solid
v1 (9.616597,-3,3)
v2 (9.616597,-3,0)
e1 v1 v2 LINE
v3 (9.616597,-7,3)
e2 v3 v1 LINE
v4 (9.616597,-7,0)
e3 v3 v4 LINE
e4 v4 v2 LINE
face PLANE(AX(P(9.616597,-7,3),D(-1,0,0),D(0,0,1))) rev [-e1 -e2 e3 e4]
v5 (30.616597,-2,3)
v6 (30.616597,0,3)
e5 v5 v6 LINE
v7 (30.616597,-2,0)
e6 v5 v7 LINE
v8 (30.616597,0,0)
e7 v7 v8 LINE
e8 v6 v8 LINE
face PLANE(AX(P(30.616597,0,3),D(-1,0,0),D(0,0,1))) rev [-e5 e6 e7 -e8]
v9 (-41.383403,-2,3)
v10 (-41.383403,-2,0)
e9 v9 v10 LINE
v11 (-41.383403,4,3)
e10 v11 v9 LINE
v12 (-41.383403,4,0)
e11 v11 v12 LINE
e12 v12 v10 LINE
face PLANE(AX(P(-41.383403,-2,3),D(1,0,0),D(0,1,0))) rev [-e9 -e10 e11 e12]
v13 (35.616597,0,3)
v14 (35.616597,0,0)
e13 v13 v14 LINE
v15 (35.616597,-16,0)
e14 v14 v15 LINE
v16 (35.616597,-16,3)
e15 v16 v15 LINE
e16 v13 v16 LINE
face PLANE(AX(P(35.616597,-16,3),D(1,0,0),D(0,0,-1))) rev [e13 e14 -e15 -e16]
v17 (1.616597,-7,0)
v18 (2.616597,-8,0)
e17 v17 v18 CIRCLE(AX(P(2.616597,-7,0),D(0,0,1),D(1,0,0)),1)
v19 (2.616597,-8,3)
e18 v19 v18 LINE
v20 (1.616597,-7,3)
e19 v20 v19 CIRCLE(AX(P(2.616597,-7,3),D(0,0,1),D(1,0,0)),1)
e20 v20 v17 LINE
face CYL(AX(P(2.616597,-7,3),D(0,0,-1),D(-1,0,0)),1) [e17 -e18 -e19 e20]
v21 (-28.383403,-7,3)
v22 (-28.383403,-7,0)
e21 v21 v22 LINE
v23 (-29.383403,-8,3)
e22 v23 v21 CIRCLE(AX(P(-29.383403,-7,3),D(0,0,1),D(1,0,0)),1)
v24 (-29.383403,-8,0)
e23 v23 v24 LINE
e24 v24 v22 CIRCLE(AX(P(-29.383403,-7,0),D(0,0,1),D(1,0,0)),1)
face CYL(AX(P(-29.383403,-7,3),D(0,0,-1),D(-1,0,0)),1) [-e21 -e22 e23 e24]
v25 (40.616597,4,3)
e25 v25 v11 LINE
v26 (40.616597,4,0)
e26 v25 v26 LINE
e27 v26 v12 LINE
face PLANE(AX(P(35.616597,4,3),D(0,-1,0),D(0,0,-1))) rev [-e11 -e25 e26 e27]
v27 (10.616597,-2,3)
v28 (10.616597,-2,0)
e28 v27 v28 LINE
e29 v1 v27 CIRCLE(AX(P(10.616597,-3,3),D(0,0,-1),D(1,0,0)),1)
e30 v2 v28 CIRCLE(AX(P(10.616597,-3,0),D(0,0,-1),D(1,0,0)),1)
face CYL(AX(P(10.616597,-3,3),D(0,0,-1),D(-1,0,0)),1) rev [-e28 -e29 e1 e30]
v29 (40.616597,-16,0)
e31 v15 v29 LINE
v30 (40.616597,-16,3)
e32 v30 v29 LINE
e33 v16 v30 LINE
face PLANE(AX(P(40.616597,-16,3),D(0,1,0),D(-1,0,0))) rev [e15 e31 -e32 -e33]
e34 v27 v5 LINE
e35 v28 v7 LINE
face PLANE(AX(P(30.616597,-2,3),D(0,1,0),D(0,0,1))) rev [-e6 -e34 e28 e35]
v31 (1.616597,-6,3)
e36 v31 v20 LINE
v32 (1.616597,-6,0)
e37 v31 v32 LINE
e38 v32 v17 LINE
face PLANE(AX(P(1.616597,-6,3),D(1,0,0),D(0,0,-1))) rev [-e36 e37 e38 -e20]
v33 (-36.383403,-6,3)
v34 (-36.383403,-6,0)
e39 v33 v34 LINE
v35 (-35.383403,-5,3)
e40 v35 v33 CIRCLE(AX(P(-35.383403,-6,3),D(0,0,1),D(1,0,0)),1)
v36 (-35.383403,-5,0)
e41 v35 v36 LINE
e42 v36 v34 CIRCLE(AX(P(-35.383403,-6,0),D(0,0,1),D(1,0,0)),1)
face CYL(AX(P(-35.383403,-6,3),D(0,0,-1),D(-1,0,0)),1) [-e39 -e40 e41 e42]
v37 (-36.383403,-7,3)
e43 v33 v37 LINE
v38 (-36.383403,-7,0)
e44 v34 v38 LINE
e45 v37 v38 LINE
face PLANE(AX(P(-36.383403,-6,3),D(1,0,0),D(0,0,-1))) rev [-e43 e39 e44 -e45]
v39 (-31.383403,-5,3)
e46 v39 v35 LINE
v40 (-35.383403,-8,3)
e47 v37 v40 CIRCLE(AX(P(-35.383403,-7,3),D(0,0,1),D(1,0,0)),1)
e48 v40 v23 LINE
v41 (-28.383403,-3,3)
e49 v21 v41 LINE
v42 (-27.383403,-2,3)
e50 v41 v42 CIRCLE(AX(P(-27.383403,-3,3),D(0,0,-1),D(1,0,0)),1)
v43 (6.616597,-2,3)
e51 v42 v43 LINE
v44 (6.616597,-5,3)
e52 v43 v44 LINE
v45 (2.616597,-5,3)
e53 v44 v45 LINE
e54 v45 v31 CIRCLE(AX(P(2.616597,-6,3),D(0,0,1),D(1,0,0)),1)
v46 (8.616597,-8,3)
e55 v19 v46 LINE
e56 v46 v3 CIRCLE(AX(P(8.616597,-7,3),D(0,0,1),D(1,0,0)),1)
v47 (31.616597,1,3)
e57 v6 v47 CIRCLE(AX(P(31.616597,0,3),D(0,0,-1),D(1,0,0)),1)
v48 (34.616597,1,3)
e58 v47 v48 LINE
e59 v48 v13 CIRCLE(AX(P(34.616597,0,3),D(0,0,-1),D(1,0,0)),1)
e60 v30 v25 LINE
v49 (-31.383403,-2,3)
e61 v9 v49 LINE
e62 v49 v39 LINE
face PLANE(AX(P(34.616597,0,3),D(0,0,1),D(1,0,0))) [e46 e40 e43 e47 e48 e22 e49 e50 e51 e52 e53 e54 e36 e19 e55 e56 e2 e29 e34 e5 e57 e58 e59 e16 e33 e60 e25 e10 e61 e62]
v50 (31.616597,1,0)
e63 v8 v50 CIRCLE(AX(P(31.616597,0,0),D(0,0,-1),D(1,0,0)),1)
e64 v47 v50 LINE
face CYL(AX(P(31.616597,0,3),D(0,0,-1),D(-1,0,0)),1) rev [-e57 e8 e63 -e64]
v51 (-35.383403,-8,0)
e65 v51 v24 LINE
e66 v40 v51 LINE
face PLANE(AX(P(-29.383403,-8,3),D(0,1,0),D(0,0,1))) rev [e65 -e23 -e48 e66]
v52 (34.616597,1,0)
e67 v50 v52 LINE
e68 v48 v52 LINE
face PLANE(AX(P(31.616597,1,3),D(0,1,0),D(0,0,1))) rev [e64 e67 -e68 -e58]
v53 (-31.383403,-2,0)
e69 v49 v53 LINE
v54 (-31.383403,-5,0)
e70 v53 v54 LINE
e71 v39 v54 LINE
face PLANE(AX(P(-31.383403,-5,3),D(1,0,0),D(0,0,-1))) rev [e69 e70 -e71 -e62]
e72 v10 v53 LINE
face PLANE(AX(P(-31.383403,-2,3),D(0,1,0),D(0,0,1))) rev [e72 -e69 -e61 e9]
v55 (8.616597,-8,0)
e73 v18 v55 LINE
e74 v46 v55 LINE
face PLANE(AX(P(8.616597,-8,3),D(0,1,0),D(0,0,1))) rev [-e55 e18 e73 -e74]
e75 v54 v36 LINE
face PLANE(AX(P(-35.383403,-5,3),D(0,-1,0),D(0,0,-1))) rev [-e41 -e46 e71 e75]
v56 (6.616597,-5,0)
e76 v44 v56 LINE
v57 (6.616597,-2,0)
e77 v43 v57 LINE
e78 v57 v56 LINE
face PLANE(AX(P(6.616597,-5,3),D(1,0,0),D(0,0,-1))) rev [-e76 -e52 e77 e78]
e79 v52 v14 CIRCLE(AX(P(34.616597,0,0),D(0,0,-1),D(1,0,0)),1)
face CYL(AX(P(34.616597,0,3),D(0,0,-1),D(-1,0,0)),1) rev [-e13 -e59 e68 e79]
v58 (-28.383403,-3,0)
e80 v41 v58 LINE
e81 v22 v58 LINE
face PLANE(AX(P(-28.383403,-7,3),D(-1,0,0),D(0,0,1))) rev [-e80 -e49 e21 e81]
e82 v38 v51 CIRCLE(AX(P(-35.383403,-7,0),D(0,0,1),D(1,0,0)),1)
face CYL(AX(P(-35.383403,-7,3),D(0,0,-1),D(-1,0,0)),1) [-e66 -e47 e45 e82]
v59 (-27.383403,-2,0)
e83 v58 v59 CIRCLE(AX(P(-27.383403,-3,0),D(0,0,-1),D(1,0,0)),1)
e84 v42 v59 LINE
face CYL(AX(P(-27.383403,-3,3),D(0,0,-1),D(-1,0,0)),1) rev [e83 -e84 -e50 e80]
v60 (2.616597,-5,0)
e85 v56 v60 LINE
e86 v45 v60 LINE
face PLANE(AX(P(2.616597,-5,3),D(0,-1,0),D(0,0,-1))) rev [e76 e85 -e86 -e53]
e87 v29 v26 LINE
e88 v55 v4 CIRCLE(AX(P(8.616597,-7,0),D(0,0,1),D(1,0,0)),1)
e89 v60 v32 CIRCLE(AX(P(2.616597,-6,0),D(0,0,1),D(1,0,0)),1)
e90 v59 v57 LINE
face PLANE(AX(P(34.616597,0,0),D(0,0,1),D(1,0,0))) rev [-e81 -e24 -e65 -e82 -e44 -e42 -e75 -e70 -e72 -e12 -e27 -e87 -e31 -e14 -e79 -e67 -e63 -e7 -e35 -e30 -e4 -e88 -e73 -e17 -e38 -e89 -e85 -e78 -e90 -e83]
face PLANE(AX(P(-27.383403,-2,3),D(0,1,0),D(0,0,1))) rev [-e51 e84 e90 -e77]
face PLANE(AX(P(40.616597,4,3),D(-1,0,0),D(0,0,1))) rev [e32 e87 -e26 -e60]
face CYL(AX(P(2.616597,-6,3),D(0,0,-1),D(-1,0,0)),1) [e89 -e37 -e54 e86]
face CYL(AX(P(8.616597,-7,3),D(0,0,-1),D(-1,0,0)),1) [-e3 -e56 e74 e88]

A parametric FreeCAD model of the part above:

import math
import FreeCAD as App
import Part
import Sketcher

V = App.Vector
Q = App.Units.Quantity

doc = App.newDocument("Part")
body = doc.addObject("PartDesign::Body", "Body")

# Sketch on XY plane
sketch1 = body.newObject("Sketcher::SketchObject", "Sketch")
sketch1.AttachmentSupport = (doc.getObject("XY_Plane"), [""])
sketch1.MapMode = "FlatFace"
sketch1.addGeometry([
    Part.LineSegment(V(-41.383403, 4, 0), V(-41.383403, -2, 0)),  # 0
    Part.LineSegment(V(-41.383403, -2, 0), V(-31.383403, -2, 0)),  # 1
    Part.LineSegment(V(-31.383403, -2, 0), V(-31.383403, -5, 0)),  # 2
    Part.LineSegment(V(-31.383403, -5, 0), V(-35.383403, -5, 0)),  # 3
    Part.ArcOfCircle(Part.Circle(V(-35.383403, -6, 0), V(0, 0, 1), 1), math.radians(90), math.radians(180)),  # 4
    Part.LineSegment(V(-36.383403, -6, 0), V(-36.383403, -7, 0)),  # 5
    Part.ArcOfCircle(Part.Circle(V(-35.383403, -7, 0), V(0, 0, 1), 1), math.radians(-180), math.radians(-90)),  # 6
    Part.LineSegment(V(-35.383403, -8, 0), V(-29.383403, -8, 0)),  # 7
    Part.ArcOfCircle(Part.Circle(V(-29.383403, -7, 0), V(0, 0, 1), 1), math.radians(-90), math.radians(0)),  # 8
    Part.LineSegment(V(-28.383403, -7, 0), V(-28.383403, -3, 0)),  # 9
    Part.ArcOfCircle(Part.Circle(V(-27.383403, -3, 0), V(0, 0, 1), 1), math.radians(90), math.radians(180)),  # 10
    Part.LineSegment(V(-27.383403, -2, 0), V(6.616597, -2, 0)),  # 11
    Part.LineSegment(V(6.616597, -2, 0), V(6.616597, -5, 0)),  # 12
    Part.LineSegment(V(6.616597, -5, 0), V(2.616597, -5, 0)),  # 13
    Part.ArcOfCircle(Part.Circle(V(2.616597, -6, 0), V(0, 0, 1), 1), math.radians(90), math.radians(180)),  # 14
    Part.LineSegment(V(1.616597, -6, 0), V(1.616597, -7, 0)),  # 15
    Part.ArcOfCircle(Part.Circle(V(2.616597, -7, 0), V(0, 0, 1), 1), math.radians(-180), math.radians(-90)),  # 16
    Part.LineSegment(V(2.616597, -8, 0), V(8.616597, -8, 0)),  # 17
    Part.ArcOfCircle(Part.Circle(V(8.616597, -7, 0), V(0, 0, 1), 1), math.radians(-90), math.radians(0)),  # 18
    Part.LineSegment(V(9.616597, -7, 0), V(9.616597, -3, 0)),  # 19
    Part.ArcOfCircle(Part.Circle(V(10.616597, -3, 0), V(0, 0, 1), 1), math.radians(90), math.radians(180)),  # 20
    Part.LineSegment(V(10.616597, -2, 0), V(30.616597, -2, 0)),  # 21
    Part.LineSegment(V(30.616597, -2, 0), V(30.616597, 0, 0)),  # 22
    Part.ArcOfCircle(Part.Circle(V(31.616597, 0, 0), V(0, 0, 1), 1), math.radians(90), math.radians(180)),  # 23
    Part.LineSegment(V(31.616597, 1, 0), V(34.616597, 1, 0)),  # 24
    Part.ArcOfCircle(Part.Circle(V(34.616597, 0, 0), V(0, 0, 1), 1), math.radians(0), math.radians(90)),  # 25
    Part.LineSegment(V(35.616597, 0, 0), V(35.616597, -16, 0)),  # 26
    Part.LineSegment(V(35.616597, -16, 0), V(40.616597, -16, 0)),  # 27
    Part.LineSegment(V(40.616597, -16, 0), V(40.616597, 4, 0)),  # 28
    Part.LineSegment(V(40.616597, 4, 0), V(-41.383403, 4, 0)),  # 29
], False)
sketch1.addConstraint([
    Sketcher.Constraint("Coincident", 0, 2, 1, 1),
    Sketcher.Constraint("Coincident", 1, 2, 2, 1),
    Sketcher.Constraint("Coincident", 2, 2, 3, 1),
    Sketcher.Constraint("Tangent", 3, 2, 4, 1),
    Sketcher.Constraint("Tangent", 4, 2, 5, 1),
    Sketcher.Constraint("Tangent", 5, 2, 6, 1),
    Sketcher.Constraint("Tangent", 6, 2, 7, 1),
    Sketcher.Constraint("Tangent", 7, 2, 8, 1),
    Sketcher.Constraint("Tangent", 8, 2, 9, 1),
    Sketcher.Constraint("Tangent", 9, 2, 10, 2),
    Sketcher.Constraint("Tangent", 10, 1, 11, 1),
    Sketcher.Constraint("Coincident", 11, 2, 12, 1),
    Sketcher.Constraint("Coincident", 12, 2, 13, 1),
    Sketcher.Constraint("Tangent", 13, 2, 14, 1),
    Sketcher.Constraint("Tangent", 14, 2, 15, 1),
    Sketcher.Constraint("Tangent", 15, 2, 16, 1),
    Sketcher.Constraint("Tangent", 16, 2, 17, 1),
    Sketcher.Constraint("Tangent", 17, 2, 18, 1),
    Sketcher.Constraint("Tangent", 18, 2, 19, 1),
    Sketcher.Constraint("Tangent", 19, 2, 20, 2),
    Sketcher.Constraint("Tangent", 20, 1, 21, 1),
    Sketcher.Constraint("Coincident", 21, 2, 22, 1),
    Sketcher.Constraint("Tangent", 22, 2, 23, 2),
    Sketcher.Constraint("Tangent", 23, 1, 24, 1),
    Sketcher.Constraint("Tangent", 24, 2, 25, 2),
    Sketcher.Constraint("Tangent", 25, 1, 26, 1),
    Sketcher.Constraint("Coincident", 26, 2, 27, 1),
    Sketcher.Constraint("Coincident", 27, 2, 28, 1),
    Sketcher.Constraint("Coincident", 28, 2, 29, 1),
    Sketcher.Constraint("Coincident", 29, 2, 0, 1),
    Sketcher.Constraint("Vertical", 0),
    Sketcher.Constraint("Horizontal", 1),
    Sketcher.Constraint("Vertical", 2),
    Sketcher.Constraint("Horizontal", 3),
    Sketcher.Constraint("Vertical", 5),
    Sketcher.Constraint("Horizontal", 7),
    Sketcher.Constraint("Vertical", 9),
    Sketcher.Constraint("Horizontal", 11),
    Sketcher.Constraint("Vertical", 12),
    Sketcher.Constraint("Horizontal", 13),
    Sketcher.Constraint("Vertical", 15),
    Sketcher.Constraint("Horizontal", 17),
    Sketcher.Constraint("Vertical", 19),
    Sketcher.Constraint("Horizontal", 21),
    Sketcher.Constraint("Vertical", 22),
    Sketcher.Constraint("Horizontal", 24),
    Sketcher.Constraint("Vertical", 26),
    Sketcher.Constraint("Horizontal", 27),
    Sketcher.Constraint("Vertical", 28),
    Sketcher.Constraint("Horizontal", 29),
    Sketcher.Constraint("Equal", 4, 6),
    Sketcher.Constraint("Equal", 6, 8),
    Sketcher.Constraint("Equal", 8, 10),
    Sketcher.Constraint("Equal", 10, 14),
    Sketcher.Constraint("Equal", 14, 16),
    Sketcher.Constraint("Equal", 16, 18),
    Sketcher.Constraint("Equal", 18, 20),
    Sketcher.Constraint("Equal", 20, 23),
    Sketcher.Constraint("Equal", 23, 25),
    Sketcher.Constraint("PointOnObject", 23, 3, -1),
    Sketcher.Constraint("Horizontal", 4, 3, 14, 3),
    Sketcher.Constraint("Horizontal", 8, 3, 16, 3),
    Sketcher.Constraint("Horizontal", 10, 3, 20, 3),
    Sketcher.Constraint("Horizontal", 1, 2, 10, 1),
    Sketcher.Constraint("Equal", 3, 13),
    Sketcher.Constraint("Equal", 7, 17),
    Sketcher.Constraint("Equal", 17, 0),
    Sketcher.Constraint("Equal", 24, 2),
    Sketcher.Constraint("Equal", 13, 9),
    Sketcher.Constraint("Equal", 21, 28),
    Sketcher.Constraint("Radius", 4, Q("1 mm")),
    Sketcher.Constraint("DistanceX", 1, 1, 1, 2, Q("10 mm")),
    Sketcher.Constraint("DistanceX", 3, 2, 3, 1, Q("4 mm")),
    Sketcher.Constraint("DistanceX", 7, 1, 7, 2, Q("6 mm")),
    Sketcher.Constraint("DistanceX", 11, 1, 11, 2, Q("34 mm")),
    Sketcher.Constraint("DistanceX", 21, 1, 21, 2, Q("20 mm")),
    Sketcher.Constraint("DistanceX", 24, 1, 24, 2, Q("3 mm")),
    Sketcher.Constraint("DistanceX", 27, 1, 27, 2, Q("5 mm")),
    Sketcher.Constraint("DistanceY", 22, 1, 22, 2, Q("2 mm")),
    Sketcher.Constraint("DistanceX", 4, 3, -1, 1, Q("35.383403 mm")),
])
pad1 = body.newObject("PartDesign::Pad", "Pad")
pad1.Profile = sketch1
pad1.Length = 3

doc.recompute()
